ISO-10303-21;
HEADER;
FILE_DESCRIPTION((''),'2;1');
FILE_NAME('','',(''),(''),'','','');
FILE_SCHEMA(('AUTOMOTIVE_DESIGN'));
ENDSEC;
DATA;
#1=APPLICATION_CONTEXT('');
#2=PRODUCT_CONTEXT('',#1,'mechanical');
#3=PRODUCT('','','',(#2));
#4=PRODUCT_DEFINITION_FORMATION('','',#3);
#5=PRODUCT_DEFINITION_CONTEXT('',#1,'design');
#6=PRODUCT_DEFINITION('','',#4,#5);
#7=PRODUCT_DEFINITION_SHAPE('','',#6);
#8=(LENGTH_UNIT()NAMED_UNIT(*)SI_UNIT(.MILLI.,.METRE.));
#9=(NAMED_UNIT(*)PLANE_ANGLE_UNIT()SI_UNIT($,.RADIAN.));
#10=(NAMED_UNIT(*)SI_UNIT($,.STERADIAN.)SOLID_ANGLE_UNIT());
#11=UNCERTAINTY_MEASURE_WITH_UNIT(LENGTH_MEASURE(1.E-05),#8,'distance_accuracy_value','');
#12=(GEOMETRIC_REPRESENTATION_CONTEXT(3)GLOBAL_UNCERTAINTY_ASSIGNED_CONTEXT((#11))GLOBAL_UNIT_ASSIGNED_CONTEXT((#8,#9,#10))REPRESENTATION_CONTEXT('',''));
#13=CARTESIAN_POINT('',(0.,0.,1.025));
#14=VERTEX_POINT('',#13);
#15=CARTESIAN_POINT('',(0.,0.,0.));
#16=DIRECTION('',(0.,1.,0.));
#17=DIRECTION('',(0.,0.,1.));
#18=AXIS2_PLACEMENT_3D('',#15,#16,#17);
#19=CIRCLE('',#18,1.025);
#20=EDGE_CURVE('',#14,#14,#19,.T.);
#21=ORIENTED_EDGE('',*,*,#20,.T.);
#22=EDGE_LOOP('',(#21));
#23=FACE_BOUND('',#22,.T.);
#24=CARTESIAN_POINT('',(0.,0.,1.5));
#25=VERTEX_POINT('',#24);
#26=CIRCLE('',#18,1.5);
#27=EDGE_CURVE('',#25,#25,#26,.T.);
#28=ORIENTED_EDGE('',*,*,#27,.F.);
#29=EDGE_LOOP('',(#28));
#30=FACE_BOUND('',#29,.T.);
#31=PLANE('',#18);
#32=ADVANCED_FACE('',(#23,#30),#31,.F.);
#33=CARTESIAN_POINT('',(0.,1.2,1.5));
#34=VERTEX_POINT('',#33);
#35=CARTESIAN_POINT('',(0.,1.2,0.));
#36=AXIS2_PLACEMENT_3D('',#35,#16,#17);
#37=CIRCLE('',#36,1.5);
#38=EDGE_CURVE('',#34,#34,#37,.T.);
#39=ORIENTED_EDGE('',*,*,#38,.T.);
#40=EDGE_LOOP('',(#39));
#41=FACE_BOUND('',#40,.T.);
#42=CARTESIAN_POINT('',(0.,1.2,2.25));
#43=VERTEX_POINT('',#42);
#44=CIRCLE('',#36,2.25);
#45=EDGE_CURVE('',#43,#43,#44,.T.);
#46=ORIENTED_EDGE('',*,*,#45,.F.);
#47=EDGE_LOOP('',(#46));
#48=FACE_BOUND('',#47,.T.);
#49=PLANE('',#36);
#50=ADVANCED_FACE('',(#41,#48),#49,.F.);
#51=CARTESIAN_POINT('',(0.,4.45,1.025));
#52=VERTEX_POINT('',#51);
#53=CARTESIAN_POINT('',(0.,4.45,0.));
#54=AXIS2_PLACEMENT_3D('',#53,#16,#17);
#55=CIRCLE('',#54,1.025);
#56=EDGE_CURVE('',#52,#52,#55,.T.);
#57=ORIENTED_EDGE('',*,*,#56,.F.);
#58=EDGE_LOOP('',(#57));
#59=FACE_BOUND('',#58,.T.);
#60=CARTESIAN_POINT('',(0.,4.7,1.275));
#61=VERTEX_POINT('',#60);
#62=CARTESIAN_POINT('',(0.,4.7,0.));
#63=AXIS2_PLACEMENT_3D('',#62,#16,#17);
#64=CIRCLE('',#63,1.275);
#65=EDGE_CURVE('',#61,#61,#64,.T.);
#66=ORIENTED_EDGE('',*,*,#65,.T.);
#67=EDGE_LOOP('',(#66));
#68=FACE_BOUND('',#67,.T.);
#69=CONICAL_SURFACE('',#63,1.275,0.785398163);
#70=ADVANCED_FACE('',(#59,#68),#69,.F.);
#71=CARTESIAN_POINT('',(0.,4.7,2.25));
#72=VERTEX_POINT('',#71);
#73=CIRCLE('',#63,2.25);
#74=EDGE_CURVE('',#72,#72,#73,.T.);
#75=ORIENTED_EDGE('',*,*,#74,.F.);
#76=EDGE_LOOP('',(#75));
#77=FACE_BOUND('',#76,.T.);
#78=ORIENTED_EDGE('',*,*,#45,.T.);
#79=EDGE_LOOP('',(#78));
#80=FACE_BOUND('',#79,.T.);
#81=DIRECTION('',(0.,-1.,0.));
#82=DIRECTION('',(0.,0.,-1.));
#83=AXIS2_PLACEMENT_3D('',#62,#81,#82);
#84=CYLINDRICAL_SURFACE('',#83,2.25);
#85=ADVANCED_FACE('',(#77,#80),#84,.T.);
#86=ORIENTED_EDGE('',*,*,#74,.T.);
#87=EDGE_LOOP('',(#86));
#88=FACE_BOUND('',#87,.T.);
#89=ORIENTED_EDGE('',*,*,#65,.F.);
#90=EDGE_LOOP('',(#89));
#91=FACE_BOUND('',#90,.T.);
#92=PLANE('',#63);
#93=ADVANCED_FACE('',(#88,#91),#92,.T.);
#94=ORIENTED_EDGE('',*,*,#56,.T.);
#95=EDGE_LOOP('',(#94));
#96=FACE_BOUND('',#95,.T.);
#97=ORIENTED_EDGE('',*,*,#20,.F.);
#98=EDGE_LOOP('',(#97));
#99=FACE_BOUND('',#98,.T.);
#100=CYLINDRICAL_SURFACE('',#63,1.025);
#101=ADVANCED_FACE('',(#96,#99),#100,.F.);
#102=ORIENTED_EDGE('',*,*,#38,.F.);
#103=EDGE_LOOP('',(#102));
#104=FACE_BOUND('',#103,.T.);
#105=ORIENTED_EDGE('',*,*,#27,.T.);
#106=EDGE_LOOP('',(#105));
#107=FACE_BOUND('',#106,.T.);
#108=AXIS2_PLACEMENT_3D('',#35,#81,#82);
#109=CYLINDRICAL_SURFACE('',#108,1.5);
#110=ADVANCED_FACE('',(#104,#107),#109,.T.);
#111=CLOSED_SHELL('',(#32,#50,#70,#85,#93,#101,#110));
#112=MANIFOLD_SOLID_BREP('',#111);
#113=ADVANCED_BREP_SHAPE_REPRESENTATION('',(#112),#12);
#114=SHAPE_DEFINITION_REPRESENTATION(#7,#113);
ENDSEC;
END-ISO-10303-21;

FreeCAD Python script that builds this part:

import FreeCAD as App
import Part
import Sketcher

V = App.Vector
Q = App.Units.Quantity

doc = App.newDocument("Part")
body = doc.addObject("PartDesign::Body", "Body")

sketch1 = doc.addObject("Sketcher::SketchObject", "Sketch")
body.addObject(sketch1)
sketch1.AttachmentSupport = (doc.XZ_Plane, [""])
sketch1.MapMode = "FlatFace"
sketch1.addGeometry(Part.Circle(V(0, 0, 0), V(0, 0, 1), 1.5), False)
sketch1.addConstraint([
    Sketcher.Constraint("Coincident", 0, 3, -1, 1),
    Sketcher.Constraint("Diameter", 0, Q("3 mm")),
])
pad1 = doc.addObject("PartDesign::Pad", "Pad")
body.addObject(pad1)
pad1.Profile = sketch1
pad1.Length = 1.2
pad1.Reversed = True

sketch2 = doc.addObject("Sketcher::SketchObject", "Sketch001")
body.addObject(sketch2)
sketch2.AttachmentSupport = (doc.XZ_Plane, [""])
sketch2.MapMode = "FlatFace"
sketch2.AttachmentOffset = App.Placement(V(0, 0, -1.2), App.Rotation())
sketch2.addGeometry(Part.Circle(V(0, 0, 0), V(0, 0, 1), 2.2), False)
sketch2.addConstraint([
    Sketcher.Constraint("Coincident", 0, 3, -1, 1),
    Sketcher.Constraint("Diameter", 0, Q("4.5 mm")),
])
pad2 = doc.addObject("PartDesign::Pad", "Pad001")
body.addObject(pad2)
pad2.Profile = sketch2
pad2.Length = 3.5
pad2.Reversed = True

sketch3 = doc.addObject("Sketcher::SketchObject", "Sketch002")
body.addObject(sketch3)
sketch3.AttachmentSupport = (doc.XZ_Plane, [""])
sketch3.MapMode = "FlatFace"
sketch3.AttachmentOffset = App.Placement(V(0, 0, -4.7), App.Rotation())
sketch3.addGeometry(Part.Circle(V(0, 0, 0), V(0, 0, 1), 1), False)
sketch3.addConstraint([
    Sketcher.Constraint("Coincident", 0, 3, -1, 1),
    Sketcher.Constraint("Diameter", 0, Q("2.05 mm")),
])
doc.recompute()
hole = doc.addObject("PartDesign::Hole", "Hole")
body.addObject(hole)
hole.Profile = sketch3
hole.ThreadType = "None"
hole.Diameter = 2.05
hole.DepthType = "ThroughAll"
hole.HoleCutType = "Countersink"
hole.HoleCutDiameter = 2.55
hole.HoleCutCountersinkAngle = 90
hole.Reversed = True

doc.recompute()
